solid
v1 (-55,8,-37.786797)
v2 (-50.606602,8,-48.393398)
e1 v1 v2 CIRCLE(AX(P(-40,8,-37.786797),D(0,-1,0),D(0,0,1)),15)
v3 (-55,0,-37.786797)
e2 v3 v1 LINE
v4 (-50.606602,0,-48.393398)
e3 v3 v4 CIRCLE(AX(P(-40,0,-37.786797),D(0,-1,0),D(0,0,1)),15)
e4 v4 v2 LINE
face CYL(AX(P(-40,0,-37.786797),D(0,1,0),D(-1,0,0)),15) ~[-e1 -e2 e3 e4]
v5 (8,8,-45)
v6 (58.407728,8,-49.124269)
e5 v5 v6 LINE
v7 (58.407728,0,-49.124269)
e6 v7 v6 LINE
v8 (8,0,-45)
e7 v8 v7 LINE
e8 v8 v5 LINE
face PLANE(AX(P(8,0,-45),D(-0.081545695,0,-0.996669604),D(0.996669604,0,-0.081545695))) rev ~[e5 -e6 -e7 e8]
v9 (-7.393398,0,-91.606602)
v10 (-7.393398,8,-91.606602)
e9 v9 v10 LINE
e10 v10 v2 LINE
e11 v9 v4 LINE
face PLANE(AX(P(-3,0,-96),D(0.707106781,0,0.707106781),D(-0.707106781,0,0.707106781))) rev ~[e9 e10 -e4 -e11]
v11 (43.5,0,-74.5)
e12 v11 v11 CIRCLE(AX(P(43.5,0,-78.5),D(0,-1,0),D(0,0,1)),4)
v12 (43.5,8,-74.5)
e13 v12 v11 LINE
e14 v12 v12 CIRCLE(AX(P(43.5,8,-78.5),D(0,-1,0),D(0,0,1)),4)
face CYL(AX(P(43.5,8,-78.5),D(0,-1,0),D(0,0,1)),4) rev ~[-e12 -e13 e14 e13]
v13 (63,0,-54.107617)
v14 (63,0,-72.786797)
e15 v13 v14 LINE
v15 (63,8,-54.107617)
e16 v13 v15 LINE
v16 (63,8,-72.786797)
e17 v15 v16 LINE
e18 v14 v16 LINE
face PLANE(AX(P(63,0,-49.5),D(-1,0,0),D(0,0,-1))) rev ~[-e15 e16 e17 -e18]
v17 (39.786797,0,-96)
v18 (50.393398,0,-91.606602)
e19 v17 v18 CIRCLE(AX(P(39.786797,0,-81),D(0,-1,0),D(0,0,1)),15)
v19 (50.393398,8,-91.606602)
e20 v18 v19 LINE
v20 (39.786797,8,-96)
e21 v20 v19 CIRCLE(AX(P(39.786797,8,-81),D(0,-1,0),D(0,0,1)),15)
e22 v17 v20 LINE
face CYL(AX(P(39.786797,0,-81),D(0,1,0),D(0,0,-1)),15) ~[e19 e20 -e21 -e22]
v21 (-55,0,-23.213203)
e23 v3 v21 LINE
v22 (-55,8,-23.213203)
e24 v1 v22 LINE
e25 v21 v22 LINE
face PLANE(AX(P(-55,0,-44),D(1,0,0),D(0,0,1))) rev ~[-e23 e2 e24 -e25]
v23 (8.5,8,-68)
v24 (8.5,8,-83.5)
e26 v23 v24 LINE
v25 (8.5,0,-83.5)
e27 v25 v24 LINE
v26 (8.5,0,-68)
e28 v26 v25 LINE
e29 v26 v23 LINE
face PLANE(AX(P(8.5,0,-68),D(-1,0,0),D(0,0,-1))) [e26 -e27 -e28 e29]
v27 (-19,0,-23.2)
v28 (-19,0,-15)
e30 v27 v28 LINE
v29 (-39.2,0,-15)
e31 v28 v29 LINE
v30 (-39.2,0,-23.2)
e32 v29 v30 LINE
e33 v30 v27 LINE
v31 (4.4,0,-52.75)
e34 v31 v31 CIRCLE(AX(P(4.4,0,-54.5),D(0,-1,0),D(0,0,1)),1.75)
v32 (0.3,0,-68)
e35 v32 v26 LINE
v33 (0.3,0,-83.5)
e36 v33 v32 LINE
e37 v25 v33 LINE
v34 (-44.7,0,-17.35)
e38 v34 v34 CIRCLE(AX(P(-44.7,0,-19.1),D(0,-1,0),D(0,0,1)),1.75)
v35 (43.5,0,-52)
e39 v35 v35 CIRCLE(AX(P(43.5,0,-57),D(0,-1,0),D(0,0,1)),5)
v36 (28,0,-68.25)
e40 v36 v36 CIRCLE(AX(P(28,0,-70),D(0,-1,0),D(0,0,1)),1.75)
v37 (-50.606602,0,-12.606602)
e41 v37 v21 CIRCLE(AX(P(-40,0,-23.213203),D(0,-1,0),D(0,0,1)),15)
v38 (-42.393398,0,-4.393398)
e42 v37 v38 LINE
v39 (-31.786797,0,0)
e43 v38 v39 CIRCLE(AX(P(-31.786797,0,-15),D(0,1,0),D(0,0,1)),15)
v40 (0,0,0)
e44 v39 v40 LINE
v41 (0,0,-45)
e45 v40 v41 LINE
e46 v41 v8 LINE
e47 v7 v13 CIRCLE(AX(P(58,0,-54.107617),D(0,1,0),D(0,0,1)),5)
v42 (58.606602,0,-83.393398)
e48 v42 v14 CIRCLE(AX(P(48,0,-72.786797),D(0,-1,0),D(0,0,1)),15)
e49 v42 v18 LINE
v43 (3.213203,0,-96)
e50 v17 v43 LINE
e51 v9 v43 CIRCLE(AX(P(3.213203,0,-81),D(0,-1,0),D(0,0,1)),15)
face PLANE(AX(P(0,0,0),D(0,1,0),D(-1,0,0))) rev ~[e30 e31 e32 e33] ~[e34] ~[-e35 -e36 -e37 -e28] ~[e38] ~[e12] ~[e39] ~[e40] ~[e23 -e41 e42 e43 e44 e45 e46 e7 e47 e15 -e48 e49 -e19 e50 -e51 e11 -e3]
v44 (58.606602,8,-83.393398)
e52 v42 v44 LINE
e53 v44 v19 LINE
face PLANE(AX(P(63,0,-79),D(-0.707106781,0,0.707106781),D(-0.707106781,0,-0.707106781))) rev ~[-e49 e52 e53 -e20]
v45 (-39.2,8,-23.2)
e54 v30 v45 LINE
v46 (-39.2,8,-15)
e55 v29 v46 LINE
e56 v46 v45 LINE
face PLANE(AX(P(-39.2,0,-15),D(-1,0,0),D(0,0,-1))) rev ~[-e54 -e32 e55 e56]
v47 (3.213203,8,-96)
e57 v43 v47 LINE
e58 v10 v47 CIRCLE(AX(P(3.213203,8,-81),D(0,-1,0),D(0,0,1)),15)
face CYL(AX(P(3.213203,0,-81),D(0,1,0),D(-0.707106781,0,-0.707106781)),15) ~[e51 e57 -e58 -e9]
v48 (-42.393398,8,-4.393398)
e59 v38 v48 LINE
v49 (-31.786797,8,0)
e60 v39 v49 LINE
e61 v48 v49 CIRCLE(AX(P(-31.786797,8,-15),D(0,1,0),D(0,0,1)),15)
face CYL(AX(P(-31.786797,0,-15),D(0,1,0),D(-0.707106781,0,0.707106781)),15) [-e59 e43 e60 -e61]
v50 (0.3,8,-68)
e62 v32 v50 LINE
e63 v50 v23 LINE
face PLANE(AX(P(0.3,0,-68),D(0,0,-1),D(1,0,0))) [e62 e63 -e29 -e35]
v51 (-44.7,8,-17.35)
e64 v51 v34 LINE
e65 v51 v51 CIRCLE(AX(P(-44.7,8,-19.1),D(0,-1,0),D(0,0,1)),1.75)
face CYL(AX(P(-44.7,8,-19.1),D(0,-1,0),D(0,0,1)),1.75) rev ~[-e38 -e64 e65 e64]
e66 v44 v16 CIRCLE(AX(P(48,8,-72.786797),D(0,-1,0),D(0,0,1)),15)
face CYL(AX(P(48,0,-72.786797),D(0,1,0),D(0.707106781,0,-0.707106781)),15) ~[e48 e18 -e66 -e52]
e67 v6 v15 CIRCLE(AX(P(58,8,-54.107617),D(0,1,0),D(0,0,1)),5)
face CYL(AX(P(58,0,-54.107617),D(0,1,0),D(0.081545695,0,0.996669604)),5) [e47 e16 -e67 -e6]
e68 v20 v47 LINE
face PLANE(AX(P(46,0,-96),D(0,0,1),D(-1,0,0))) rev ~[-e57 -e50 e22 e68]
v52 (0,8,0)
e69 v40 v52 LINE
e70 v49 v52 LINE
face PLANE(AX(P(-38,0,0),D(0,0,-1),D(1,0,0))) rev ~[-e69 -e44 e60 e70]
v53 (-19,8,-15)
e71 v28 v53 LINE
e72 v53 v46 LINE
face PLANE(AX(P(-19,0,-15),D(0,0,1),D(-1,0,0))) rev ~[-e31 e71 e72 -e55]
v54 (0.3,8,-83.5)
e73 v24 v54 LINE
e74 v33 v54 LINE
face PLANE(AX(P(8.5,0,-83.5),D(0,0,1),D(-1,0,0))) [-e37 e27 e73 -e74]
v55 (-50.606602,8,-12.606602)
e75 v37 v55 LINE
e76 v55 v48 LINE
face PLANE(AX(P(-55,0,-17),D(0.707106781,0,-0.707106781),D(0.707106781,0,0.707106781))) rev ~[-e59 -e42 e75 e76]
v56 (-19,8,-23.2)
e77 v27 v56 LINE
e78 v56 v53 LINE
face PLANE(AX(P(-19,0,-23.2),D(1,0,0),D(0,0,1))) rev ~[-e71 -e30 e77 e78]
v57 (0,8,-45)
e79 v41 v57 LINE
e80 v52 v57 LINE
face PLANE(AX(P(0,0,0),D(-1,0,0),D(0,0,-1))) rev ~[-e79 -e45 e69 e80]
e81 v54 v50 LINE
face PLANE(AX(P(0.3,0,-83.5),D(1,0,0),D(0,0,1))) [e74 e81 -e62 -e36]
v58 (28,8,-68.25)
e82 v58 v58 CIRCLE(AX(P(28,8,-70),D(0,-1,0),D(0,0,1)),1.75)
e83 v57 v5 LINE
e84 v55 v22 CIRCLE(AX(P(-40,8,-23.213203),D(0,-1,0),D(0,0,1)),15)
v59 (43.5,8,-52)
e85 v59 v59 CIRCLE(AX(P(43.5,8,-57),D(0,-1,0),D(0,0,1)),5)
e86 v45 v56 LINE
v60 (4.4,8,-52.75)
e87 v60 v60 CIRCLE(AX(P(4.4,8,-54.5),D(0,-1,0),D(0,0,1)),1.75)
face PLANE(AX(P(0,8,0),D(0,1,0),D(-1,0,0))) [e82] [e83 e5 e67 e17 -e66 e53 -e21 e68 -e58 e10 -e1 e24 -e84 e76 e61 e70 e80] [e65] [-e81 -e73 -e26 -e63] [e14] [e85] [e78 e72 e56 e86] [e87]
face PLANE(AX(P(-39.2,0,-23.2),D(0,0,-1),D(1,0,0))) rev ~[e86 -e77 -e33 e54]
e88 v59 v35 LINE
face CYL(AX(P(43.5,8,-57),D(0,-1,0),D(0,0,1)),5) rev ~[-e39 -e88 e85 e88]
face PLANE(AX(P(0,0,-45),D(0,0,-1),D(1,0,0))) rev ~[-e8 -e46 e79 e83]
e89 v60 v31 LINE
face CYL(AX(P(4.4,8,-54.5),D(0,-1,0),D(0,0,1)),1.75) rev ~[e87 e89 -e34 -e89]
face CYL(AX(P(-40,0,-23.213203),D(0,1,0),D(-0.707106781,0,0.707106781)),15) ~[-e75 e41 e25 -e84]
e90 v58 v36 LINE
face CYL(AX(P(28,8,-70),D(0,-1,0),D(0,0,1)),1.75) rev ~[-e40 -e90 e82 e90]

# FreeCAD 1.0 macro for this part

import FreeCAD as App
import Part
import Sketcher
Q = App.Units.Quantity


def edges_at(feature, points):
    """Names of the edges that pass closest to the given points."""
    edges = feature.Shape.Edges
    near = lambda p: min(range(len(edges)), key=lambda i: edges[i].distToShape(Part.Vertex(*p))[0])
    return sorted({f"Edge{near(p) + 1}" for p in points})


def add_polygon(sketch, points):
    """Adds a closed chain of lines whose ends are joined by coincident constraints."""
    first, n = sketch.GeometryCount, len(points)
    for a, b in zip(points, points[1:] + points[:1]):
        sketch.addGeometry(Part.LineSegment(App.Vector(*a, 0), App.Vector(*b, 0)), False)
    for i in range(n):
        sketch.addConstraint(Sketcher.Constraint("Coincident", first + i, 2, first + (i + 1) % n, 1))

doc = App.newDocument("Part")
params = doc.addObject("Spreadsheet::Sheet", "Params")
for row, (alias, value) in enumerate([
    ("sketch1_width", "8 mm"),
    ("sketch1_height", "45 mm"),
    ("sketch1_width2", "8.2 mm"),
    ("sketch1_width3", "20.2 mm"),
    ("sketch1_height2", "15.5 mm"),
    ("pad1_length", "8 mm"),
    ("fillet_radius", "15 mm"),
    ("fillet2_radius", "5 mm"),
    ("sketch2_diameter", "3.5 mm"),
    ("hole_diameter", "3.5 mm"),
    ("sketch3_diameter", "8 mm"),
    ("hole2_diameter", "8 mm"),
    ("sketch4_diameter", "10 mm"),
    ("hole3_diameter", "10 mm"),
], start=1):
    params.set(f"A{row}", alias)
    params.set(f"B{row}", "=" + value)
    params.setAlias(f"B{row}", alias)

body = doc.addObject("PartDesign::Body", "Body")

# Sketch on XZ plane
sketch1 = doc.addObject("Sketcher::SketchObject", "Sketch")
body.addObject(sketch1)
sketch1.AttachmentSupport = (doc.XZ_Plane, [""])
sketch1.MapMode = "FlatFace"
add_polygon(sketch1, [(-55, -17), (-38, 0), (0, 0), (0, -45), (8, -45), (63, -49.5), (63, -79), (46, -96), (-3, -96), (-55, -44)])  # lines 0-9
add_polygon(sketch1, [(8.5, -68), (0.3, -68), (0.3, -83.5), (8.5, -83.5)])  # lines 10-13
add_polygon(sketch1, [(-19, -23.2), (-19, -15), (-39.2, -15), (-39.2, -23.2)])  # lines 14-17
sketch1.addConstraint(Sketcher.Constraint("Horizontal", 1))
sketch1.addConstraint(Sketcher.Constraint("Vertical", 2))
sketch1.addConstraint(Sketcher.Constraint("Horizontal", 3))
sketch1.addConstraint(Sketcher.Constraint("Vertical", 5))
sketch1.addConstraint(Sketcher.Constraint("Horizontal", 7))
sketch1.addConstraint(Sketcher.Constraint("Vertical", 9))
sketch1.addConstraint(Sketcher.Constraint("Horizontal", 10))
sketch1.addConstraint(Sketcher.Constraint("Vertical", 11))
sketch1.addConstraint(Sketcher.Constraint("Horizontal", 12))
sketch1.addConstraint(Sketcher.Constraint("Vertical", 13))
sketch1.addConstraint(Sketcher.Constraint("Vertical", 14))
sketch1.addConstraint(Sketcher.Constraint("Horizontal", 15))
sketch1.addConstraint(Sketcher.Constraint("Vertical", 16))
sketch1.addConstraint(Sketcher.Constraint("Horizontal", 17))
sketch1.addConstraint(Sketcher.Constraint("Coincident", 1, 2, -1, 1))
sketch1.addConstraint(Sketcher.Constraint("Parallel", 0, 6))
sketch1.addConstraint(Sketcher.Constraint("Perpendicular", 6, 8))
sketch1.addConstraint(Sketcher.Constraint("Equal", 12, 14))
sketch1.addConstraint(Sketcher.Constraint("Equal", 0, 6))
sketch1.addConstraint(Sketcher.Constraint("DistanceX", 3, 1, 3, 2, 8.0))
sketch1.addConstraint(Sketcher.Constraint("DistanceY", 2, 2, 2, 1, 45.0))
sketch1.addConstraint(Sketcher.Constraint("Angle", 0, Q("45 deg")))
sketch1.addConstraint(Sketcher.Constraint("DistanceX", 10, 2, 10, 1, 8.2))
sketch1.addConstraint(Sketcher.Constraint("DistanceX", 15, 2, 15, 1, 20.2))
sketch1.addConstraint(Sketcher.Constraint("DistanceY", 11, 2, 11, 1, 15.5))
sketch1.addConstraint(Sketcher.Constraint("DistanceX", -1, 1, 4, 2, 63.0))
sketch1.addConstraint(Sketcher.Constraint("DistanceY", 6, 2, -1, 1, 96.0))
sketch1.addConstraint(Sketcher.Constraint("DistanceX", 8, 2, -1, 1, 55.0))
sketch1.addConstraint(Sketcher.Constraint("DistanceY", 8, 2, -1, 1, 44.0))
sketch1.addConstraint(Sketcher.Constraint("DistanceY", 9, 2, -1, 1, 17.0))
sketch1.addConstraint(Sketcher.Constraint("DistanceX", 14, 2, -1, 1, 19.0))
sketch1.addConstraint(Sketcher.Constraint("DistanceY", 14, 2, -1, 1, 15.0))
sketch1.addConstraint(Sketcher.Constraint("DistanceY", 6, 2, 4, 2, 46.5))
sketch1.addConstraint(Sketcher.Constraint("DistanceY", 7, 2, 11, 2, 12.5))
sketch1.addConstraint(Sketcher.Constraint("DistanceX", -1, 1, 10, 2, 0.3))
sketch1.setExpression("Constraints[37]", "Params.sketch1_width")
sketch1.setExpression("Constraints[38]", "Params.sketch1_height")
sketch1.setExpression("Constraints[40]", "Params.sketch1_width2")
sketch1.setExpression("Constraints[41]", "Params.sketch1_width3")
sketch1.setExpression("Constraints[42]", "Params.sketch1_height2")
pad1 = doc.addObject("PartDesign::Pad", "Pad")
body.addObject(pad1)
pad1.Profile = sketch1
pad1.setExpression("Length", "Params.pad1_length")
pad1.Reversed = True
doc.recompute()

fillet = doc.addObject("PartDesign::Fillet", "Fillet")
body.addObject(fillet)
fillet.Base = (pad1, edges_at(pad1, [
    (-38, 4, 0),
    (-55, 4, -17),
    (-55, 4, -44),
    (-3, 4, -96),
    (46, 4, -96),
    (63, 4, -79),
]))
fillet.setExpression("Radius", "Params.fillet_radius")
doc.recompute()

fillet2 = doc.addObject("PartDesign::Fillet", "Fillet001")
body.addObject(fillet2)
fillet2.Base = (fillet, edges_at(fillet, [(63, 4, -49.5)]))
fillet2.setExpression("Radius", "Params.fillet2_radius")

# Sketch on XZ plane
sketch2 = doc.addObject("Sketcher::SketchObject", "Sketch001")
body.addObject(sketch2)
sketch2.AttachmentSupport = (doc.XZ_Plane, [""])
sketch2.MapMode = "FlatFace"
sketch2.AttachmentOffset = App.Placement(App.Vector(0, 0, -8), App.Rotation())
sketch2.addGeometry(Part.Circle(App.Vector(28, -70, 0), App.Vector(0, 0, 1), 1.75), False)
sketch2.addGeometry(Part.Circle(App.Vector(4.4, -54.5, 0), App.Vector(0, 0, 1), 1.75), False)
sketch2.addGeometry(Part.Circle(App.Vector(-44.7, -19.1, 0), App.Vector(0, 0, 1), 1.75), False)
sketch2.addConstraint(Sketcher.Constraint("Equal", 0, 1))
sketch2.addConstraint(Sketcher.Constraint("Equal", 1, 2))
sketch2.addConstraint(Sketcher.Constraint("Diameter", 0, 3.5))
sketch2.addConstraint(Sketcher.Constraint("DistanceX", -1, 1, 0, 3, 28.0))
sketch2.addConstraint(Sketcher.Constraint("DistanceY", 0, 3, -1, 1, 70.0))
sketch2.addConstraint(Sketcher.Constraint("DistanceX", -1, 1, 1, 3, 4.4))
sketch2.addConstraint(Sketcher.Constraint("DistanceY", 1, 3, -1, 1, 54.5))
sketch2.addConstraint(Sketcher.Constraint("DistanceX", 2, 3, -1, 1, 44.7))
sketch2.addConstraint(Sketcher.Constraint("DistanceY", 2, 3, -1, 1, 19.1))
sketch2.setExpression("Constraints[2]", "Params.sketch2_diameter")
doc.recompute()
hole = doc.addObject("PartDesign::Hole", "Hole")
body.addObject(hole)
hole.Profile = sketch2
hole.ThreadType = "None"
hole.setExpression("Diameter", "Params.hole_diameter")
hole.DepthType = "ThroughAll"
hole.Reversed = True

# Sketch on XZ plane
sketch3 = doc.addObject("Sketcher::SketchObject", "Sketch002")
body.addObject(sketch3)
sketch3.AttachmentSupport = (doc.XZ_Plane, [""])
sketch3.MapMode = "FlatFace"
sketch3.AttachmentOffset = App.Placement(App.Vector(0, 0, -8), App.Rotation())
sketch3.addGeometry(Part.Circle(App.Vector(43.5, -78.5, 0), App.Vector(0, 0, 1), 4), False)
sketch3.addConstraint(Sketcher.Constraint("Diameter", 0, 8.0))
sketch3.addConstraint(Sketcher.Constraint("DistanceX", -1, 1, 0, 3, 43.5))
sketch3.addConstraint(Sketcher.Constraint("DistanceY", 0, 3, -1, 1, 78.5))
sketch3.setExpression("Constraints[0]", "Params.sketch3_diameter")
doc.recompute()
hole2 = doc.addObject("PartDesign::Hole", "Hole001")
body.addObject(hole2)
hole2.Profile = sketch3
hole2.ThreadType = "None"
hole2.setExpression("Diameter", "Params.hole2_diameter")
hole2.DepthType = "ThroughAll"
hole2.Reversed = True

# Sketch on XZ plane
sketch4 = doc.addObject("Sketcher::SketchObject", "Sketch003")
body.addObject(sketch4)
sketch4.AttachmentSupport = (doc.XZ_Plane, [""])
sketch4.MapMode = "FlatFace"
sketch4.AttachmentOffset = App.Placement(App.Vector(0, 0, -8), App.Rotation())
sketch4.addGeometry(Part.Circle(App.Vector(43.5, -57, 0), App.Vector(0, 0, 1), 5), False)
sketch4.addConstraint(Sketcher.Constraint("Diameter", 0, 10.0))
sketch4.addConstraint(Sketcher.Constraint("DistanceY", 0, 3, -1, 1, 57.0))
sketch4.addConstraint(Sketcher.Constraint("DistanceX", -1, 1, 0, 3, 43.5))
sketch4.setExpression("Constraints[0]", "Params.sketch4_diameter")
doc.recompute()
hole3 = doc.addObject("PartDesign::Hole", "Hole002")
body.addObject(hole3)
hole3.Profile = sketch4
hole3.ThreadType = "None"
hole3.setExpression("Diameter", "Params.hole3_diameter")
hole3.DepthType = "ThroughAll"
hole3.Reversed = True

doc.recompute()
